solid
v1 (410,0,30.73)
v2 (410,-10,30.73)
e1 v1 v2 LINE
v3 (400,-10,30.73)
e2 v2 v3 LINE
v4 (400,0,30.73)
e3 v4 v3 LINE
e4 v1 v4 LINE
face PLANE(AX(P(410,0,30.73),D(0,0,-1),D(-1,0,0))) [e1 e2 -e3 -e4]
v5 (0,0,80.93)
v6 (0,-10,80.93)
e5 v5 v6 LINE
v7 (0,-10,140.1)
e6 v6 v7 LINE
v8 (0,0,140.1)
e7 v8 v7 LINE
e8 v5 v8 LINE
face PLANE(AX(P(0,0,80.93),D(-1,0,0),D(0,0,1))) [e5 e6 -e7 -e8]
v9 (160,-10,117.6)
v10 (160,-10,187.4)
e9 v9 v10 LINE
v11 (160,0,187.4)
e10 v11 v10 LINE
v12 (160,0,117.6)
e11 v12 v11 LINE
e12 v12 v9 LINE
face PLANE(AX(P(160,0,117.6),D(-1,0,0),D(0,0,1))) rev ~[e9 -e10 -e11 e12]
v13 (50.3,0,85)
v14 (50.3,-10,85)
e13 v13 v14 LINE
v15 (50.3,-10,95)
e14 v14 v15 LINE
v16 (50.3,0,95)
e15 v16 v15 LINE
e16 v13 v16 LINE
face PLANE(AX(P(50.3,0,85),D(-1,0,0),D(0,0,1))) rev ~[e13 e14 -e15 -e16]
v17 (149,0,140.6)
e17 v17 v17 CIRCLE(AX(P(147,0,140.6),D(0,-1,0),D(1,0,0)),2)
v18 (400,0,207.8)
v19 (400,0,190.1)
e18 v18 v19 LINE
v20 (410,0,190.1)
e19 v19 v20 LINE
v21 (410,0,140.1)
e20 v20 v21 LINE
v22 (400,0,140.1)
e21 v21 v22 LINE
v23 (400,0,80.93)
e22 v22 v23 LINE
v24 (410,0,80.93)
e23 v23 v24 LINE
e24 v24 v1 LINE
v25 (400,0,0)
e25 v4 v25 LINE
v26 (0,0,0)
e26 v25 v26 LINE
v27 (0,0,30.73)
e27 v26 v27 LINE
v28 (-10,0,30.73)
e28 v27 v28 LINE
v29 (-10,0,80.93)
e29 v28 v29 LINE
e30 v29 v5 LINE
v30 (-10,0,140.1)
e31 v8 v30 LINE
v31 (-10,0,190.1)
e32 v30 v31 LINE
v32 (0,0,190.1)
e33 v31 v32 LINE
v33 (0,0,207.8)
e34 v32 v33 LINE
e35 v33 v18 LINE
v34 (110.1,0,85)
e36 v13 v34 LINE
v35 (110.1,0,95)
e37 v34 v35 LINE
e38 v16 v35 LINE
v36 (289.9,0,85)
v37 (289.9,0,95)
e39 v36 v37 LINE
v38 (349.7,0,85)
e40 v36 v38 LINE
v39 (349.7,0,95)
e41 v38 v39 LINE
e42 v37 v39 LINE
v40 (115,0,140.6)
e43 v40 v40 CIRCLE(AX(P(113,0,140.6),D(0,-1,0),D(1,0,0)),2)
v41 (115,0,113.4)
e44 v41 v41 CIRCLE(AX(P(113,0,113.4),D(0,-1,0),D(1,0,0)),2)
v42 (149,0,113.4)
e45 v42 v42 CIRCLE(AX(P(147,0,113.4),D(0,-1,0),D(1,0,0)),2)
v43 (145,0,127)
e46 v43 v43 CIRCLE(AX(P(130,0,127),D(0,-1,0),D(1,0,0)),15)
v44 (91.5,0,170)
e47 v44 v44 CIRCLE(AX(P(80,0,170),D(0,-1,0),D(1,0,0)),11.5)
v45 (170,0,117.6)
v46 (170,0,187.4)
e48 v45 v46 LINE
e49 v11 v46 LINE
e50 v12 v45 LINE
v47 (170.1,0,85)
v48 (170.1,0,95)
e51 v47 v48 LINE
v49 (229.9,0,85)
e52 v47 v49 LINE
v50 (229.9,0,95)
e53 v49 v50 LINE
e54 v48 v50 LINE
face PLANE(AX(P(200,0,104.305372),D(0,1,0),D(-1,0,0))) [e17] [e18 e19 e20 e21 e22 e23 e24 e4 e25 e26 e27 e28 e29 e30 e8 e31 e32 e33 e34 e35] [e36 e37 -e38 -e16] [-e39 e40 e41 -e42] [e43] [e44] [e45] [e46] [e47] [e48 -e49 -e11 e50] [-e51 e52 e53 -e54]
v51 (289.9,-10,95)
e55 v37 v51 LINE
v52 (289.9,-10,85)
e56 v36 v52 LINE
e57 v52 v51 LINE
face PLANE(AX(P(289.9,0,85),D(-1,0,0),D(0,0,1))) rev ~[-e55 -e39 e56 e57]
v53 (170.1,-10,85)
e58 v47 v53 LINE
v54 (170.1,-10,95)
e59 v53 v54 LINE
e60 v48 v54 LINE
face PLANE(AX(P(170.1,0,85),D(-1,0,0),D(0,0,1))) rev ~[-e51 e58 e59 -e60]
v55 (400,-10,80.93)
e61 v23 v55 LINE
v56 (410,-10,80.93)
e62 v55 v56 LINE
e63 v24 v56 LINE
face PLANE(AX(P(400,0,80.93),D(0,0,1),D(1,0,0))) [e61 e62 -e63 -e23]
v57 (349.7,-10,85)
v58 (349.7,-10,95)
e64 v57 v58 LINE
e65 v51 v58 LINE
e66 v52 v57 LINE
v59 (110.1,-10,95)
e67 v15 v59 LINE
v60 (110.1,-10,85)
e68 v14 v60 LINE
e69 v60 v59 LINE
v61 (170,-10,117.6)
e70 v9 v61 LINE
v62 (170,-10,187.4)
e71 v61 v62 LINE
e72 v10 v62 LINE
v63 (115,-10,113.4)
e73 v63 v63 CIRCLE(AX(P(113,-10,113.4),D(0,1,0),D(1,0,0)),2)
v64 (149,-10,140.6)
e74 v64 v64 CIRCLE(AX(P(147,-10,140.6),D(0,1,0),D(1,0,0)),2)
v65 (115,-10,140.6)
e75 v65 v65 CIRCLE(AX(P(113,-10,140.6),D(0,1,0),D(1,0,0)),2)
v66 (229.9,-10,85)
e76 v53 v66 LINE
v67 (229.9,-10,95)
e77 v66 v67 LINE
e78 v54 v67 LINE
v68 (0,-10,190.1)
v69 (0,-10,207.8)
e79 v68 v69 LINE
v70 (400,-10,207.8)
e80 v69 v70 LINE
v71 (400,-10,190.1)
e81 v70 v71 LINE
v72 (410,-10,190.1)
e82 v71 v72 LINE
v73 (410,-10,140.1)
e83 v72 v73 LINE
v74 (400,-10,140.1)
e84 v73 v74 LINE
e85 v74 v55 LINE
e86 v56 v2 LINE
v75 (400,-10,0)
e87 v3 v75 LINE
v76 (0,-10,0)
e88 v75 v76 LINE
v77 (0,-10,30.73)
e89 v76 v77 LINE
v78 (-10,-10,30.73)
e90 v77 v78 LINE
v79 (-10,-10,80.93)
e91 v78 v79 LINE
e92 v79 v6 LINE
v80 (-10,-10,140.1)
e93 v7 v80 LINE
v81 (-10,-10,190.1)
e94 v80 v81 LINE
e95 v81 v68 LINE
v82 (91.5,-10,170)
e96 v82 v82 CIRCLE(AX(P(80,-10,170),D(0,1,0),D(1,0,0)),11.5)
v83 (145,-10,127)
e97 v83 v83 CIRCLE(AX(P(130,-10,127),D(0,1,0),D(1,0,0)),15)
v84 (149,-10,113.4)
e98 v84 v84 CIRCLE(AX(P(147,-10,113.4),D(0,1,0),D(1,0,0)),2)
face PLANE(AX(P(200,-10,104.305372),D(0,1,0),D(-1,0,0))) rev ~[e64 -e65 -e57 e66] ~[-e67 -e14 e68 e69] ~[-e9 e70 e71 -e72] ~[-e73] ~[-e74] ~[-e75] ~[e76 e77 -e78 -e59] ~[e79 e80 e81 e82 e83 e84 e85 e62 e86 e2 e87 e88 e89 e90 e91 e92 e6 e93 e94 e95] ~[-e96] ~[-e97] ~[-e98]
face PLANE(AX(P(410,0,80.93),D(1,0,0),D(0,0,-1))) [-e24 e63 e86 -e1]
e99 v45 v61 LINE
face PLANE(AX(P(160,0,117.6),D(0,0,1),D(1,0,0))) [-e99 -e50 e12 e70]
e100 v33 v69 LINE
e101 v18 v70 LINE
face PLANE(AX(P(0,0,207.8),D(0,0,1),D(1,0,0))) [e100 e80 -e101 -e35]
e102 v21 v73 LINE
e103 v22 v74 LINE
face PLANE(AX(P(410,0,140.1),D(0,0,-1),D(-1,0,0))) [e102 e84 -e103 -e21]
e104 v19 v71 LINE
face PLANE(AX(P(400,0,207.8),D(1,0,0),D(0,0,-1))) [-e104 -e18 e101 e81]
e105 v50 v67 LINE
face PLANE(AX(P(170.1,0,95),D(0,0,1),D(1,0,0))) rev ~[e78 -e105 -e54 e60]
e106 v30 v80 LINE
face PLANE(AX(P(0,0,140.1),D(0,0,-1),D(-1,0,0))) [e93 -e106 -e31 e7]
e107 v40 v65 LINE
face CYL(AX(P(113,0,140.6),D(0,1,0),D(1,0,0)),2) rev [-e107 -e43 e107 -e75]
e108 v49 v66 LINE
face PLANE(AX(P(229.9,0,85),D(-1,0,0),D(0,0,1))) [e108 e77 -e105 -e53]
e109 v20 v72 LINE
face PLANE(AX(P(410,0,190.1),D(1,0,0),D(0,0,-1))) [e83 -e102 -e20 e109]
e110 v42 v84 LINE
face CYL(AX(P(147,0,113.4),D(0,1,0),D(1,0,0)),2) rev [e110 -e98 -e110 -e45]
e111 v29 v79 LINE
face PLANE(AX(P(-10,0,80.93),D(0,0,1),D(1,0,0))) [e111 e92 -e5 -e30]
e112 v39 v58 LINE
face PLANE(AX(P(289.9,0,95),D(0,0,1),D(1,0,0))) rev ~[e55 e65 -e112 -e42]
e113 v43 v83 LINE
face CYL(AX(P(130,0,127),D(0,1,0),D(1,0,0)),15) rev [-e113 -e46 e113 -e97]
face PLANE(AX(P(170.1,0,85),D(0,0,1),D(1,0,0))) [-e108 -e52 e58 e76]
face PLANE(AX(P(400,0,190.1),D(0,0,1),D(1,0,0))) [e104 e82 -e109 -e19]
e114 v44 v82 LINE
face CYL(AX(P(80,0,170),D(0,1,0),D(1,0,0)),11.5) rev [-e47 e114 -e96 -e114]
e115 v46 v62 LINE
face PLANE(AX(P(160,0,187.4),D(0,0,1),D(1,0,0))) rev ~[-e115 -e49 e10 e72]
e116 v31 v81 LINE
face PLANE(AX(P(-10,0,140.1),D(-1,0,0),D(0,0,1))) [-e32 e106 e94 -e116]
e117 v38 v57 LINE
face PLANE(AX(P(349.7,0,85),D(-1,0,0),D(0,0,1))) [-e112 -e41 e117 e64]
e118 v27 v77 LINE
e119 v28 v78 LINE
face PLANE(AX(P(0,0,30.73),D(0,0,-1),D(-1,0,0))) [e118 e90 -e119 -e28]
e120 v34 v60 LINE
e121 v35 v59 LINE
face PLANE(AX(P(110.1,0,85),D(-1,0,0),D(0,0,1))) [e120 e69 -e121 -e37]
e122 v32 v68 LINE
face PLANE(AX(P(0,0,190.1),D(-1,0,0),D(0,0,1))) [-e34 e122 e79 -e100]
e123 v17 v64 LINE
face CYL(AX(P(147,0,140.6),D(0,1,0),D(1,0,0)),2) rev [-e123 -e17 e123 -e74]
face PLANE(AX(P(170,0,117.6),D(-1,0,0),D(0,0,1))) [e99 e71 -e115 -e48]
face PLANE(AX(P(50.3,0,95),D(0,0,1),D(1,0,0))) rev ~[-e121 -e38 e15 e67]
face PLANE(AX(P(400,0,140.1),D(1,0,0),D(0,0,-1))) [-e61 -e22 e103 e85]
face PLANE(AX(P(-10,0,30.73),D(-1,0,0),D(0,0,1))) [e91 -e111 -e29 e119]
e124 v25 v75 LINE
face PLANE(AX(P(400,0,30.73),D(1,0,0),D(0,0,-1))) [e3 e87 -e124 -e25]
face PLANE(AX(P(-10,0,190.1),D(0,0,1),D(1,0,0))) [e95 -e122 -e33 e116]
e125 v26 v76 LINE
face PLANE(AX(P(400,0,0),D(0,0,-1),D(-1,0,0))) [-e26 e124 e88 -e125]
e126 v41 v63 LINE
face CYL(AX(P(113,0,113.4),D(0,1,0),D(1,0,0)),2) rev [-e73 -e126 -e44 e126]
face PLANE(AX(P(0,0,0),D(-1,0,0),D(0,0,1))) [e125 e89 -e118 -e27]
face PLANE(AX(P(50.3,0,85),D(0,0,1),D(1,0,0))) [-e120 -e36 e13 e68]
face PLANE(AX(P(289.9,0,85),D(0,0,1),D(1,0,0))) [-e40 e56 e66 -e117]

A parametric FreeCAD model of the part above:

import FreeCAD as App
import Part
import Sketcher
from FreeCAD import Vector

doc = App.newDocument("Part")
params = doc.addObject("Spreadsheet::Sheet", "Params")
for row, (alias, value) in enumerate([
    ("sketch1_width", "400 mm"),
    ("sketch1_width2", "10 mm"),
    ("sketch1_height", "50 mm"),
    ("sketch1_width3", "59.8 mm"),
    ("sketch1_height2", "50.2 mm"),
    ("pad1_length", "10 mm"),
    ("sketch2_diameter", "4 mm"),
    ("sketch2_diameter2", "30 mm"),
    ("sketch3_diameter", "23 mm"),
], start=1):
    params.set(f"A{row}", alias)
    params.set(f"B{row}", "=" + value)
    params.setAlias(f"B{row}", alias)

body = doc.addObject("PartDesign::Body", "Body")

# Sketch on XZ plane
sketch1 = body.newObject("Sketcher::SketchObject", "Sketch")
sketch1.AttachmentSupport = (doc.getObject("XZ_Plane"), [""])
sketch1.MapMode = "FlatFace"
sketch1.addGeometry([
    Part.LineSegment(Vector(0, 31, 0), Vector(0, 0, 0)),  # 0
    Part.LineSegment(Vector(0, 0, 0), Vector(400, 0, 0)),  # 1
    Part.LineSegment(Vector(400, 0, 0), Vector(400, 31, 0)),  # 2
    Part.LineSegment(Vector(400, 31, 0), Vector(410, 31, 0)),  # 3
    Part.LineSegment(Vector(410, 31, 0), Vector(410, 81, 0)),  # 4
    Part.LineSegment(Vector(410, 81, 0), Vector(400, 81, 0)),  # 5
    Part.LineSegment(Vector(400, 81, 0), Vector(400, 140, 0)),  # 6
    Part.LineSegment(Vector(400, 140, 0), Vector(410, 140, 0)),  # 7
    Part.LineSegment(Vector(410, 140, 0), Vector(410, 190, 0)),  # 8
    Part.LineSegment(Vector(410, 190, 0), Vector(400, 190, 0)),  # 9
    Part.LineSegment(Vector(400, 190, 0), Vector(400, 208, 0)),  # 10
    Part.LineSegment(Vector(400, 208, 0), Vector(0, 208, 0)),  # 11
    Part.LineSegment(Vector(0, 208, 0), Vector(0, 190, 0)),  # 12
    Part.LineSegment(Vector(0, 190, 0), Vector(-10, 190, 0)),  # 13
    Part.LineSegment(Vector(-10, 190, 0), Vector(-10, 140, 0)),  # 14
    Part.LineSegment(Vector(-10, 140, 0), Vector(0, 140, 0)),  # 15
    Part.LineSegment(Vector(0, 140, 0), Vector(0, 81, 0)),  # 16
    Part.LineSegment(Vector(0, 81, 0), Vector(-10, 81, 0)),  # 17
    Part.LineSegment(Vector(-10, 81, 0), Vector(-10, 31, 0)),  # 18
    Part.LineSegment(Vector(-10, 31, 0), Vector(0, 31, 0)),  # 19
    Part.LineSegment(Vector(290, 85, 0), Vector(290, 95, 0)),  # 20
    Part.LineSegment(Vector(290, 95, 0), Vector(350, 95, 0)),  # 21
    Part.LineSegment(Vector(350, 95, 0), Vector(350, 85, 0)),  # 22
    Part.LineSegment(Vector(350, 85, 0), Vector(290, 85, 0)),  # 23
    Part.LineSegment(Vector(170, 85, 0), Vector(170, 95, 0)),  # 24
    Part.LineSegment(Vector(170, 95, 0), Vector(230, 95, 0)),  # 25
    Part.LineSegment(Vector(230, 95, 0), Vector(230, 85, 0)),  # 26
    Part.LineSegment(Vector(230, 85, 0), Vector(170, 85, 0)),  # 27
    Part.LineSegment(Vector(50, 85, 0), Vector(50, 95, 0)),  # 28
    Part.LineSegment(Vector(50, 95, 0), Vector(110, 95, 0)),  # 29
    Part.LineSegment(Vector(110, 95, 0), Vector(110, 85, 0)),  # 30
    Part.LineSegment(Vector(110, 85, 0), Vector(50, 85, 0)),  # 31
    Part.LineSegment(Vector(160, 118, 0), Vector(160, 187, 0)),  # 32
    Part.LineSegment(Vector(160, 187, 0), Vector(170, 187, 0)),  # 33
    Part.LineSegment(Vector(170, 187, 0), Vector(170, 118, 0)),  # 34
    Part.LineSegment(Vector(170, 118, 0), Vector(160, 118, 0)),  # 35
], False)
sketch1.addConstraint([
    Sketcher.Constraint("Coincident", 0, 2, 1, 1),
    Sketcher.Constraint("Coincident", 1, 2, 2, 1),
    Sketcher.Constraint("Coincident", 2, 2, 3, 1),
    Sketcher.Constraint("Coincident", 3, 2, 4, 1),
    Sketcher.Constraint("Coincident", 4, 2, 5, 1),
    Sketcher.Constraint("Coincident", 5, 2, 6, 1),
    Sketcher.Constraint("Coincident", 6, 2, 7, 1),
    Sketcher.Constraint("Coincident", 7, 2, 8, 1),
    Sketcher.Constraint("Coincident", 8, 2, 9, 1),
    Sketcher.Constraint("Coincident", 9, 2, 10, 1),
    Sketcher.Constraint("Coincident", 10, 2, 11, 1),
    Sketcher.Constraint("Coincident", 11, 2, 12, 1),
    Sketcher.Constraint("Coincident", 12, 2, 13, 1),
    Sketcher.Constraint("Coincident", 13, 2, 14, 1),
    Sketcher.Constraint("Coincident", 14, 2, 15, 1),
    Sketcher.Constraint("Coincident", 15, 2, 16, 1),
    Sketcher.Constraint("Coincident", 16, 2, 17, 1),
    Sketcher.Constraint("Coincident", 17, 2, 18, 1),
    Sketcher.Constraint("Coincident", 18, 2, 19, 1),
    Sketcher.Constraint("Coincident", 19, 2, 0, 1),
    Sketcher.Constraint("Coincident", 20, 2, 21, 1),
    Sketcher.Constraint("Coincident", 21, 2, 22, 1),
    Sketcher.Constraint("Coincident", 22, 2, 23, 1),
    Sketcher.Constraint("Coincident", 23, 2, 20, 1),
    Sketcher.Constraint("Coincident", 24, 2, 25, 1),
    Sketcher.Constraint("Coincident", 25, 2, 26, 1),
    Sketcher.Constraint("Coincident", 26, 2, 27, 1),
    Sketcher.Constraint("Coincident", 27, 2, 24, 1),
    Sketcher.Constraint("Coincident", 28, 2, 29, 1),
    Sketcher.Constraint("Coincident", 29, 2, 30, 1),
    Sketcher.Constraint("Coincident", 30, 2, 31, 1),
    Sketcher.Constraint("Coincident", 31, 2, 28, 1),
    Sketcher.Constraint("Coincident", 32, 2, 33, 1),
    Sketcher.Constraint("Coincident", 33, 2, 34, 1),
    Sketcher.Constraint("Coincident", 34, 2, 35, 1),
    Sketcher.Constraint("Coincident", 35, 2, 32, 1),
    Sketcher.Constraint("Vertical", 0),
    Sketcher.Constraint("Horizontal", 1),
    Sketcher.Constraint("Vertical", 2),
    Sketcher.Constraint("Horizontal", 3),
    Sketcher.Constraint("Vertical", 4),
    Sketcher.Constraint("Horizontal", 5),
    Sketcher.Constraint("Vertical", 6),
    Sketcher.Constraint("Horizontal", 7),
    Sketcher.Constraint("Vertical", 8),
    Sketcher.Constraint("Horizontal", 9),
    Sketcher.Constraint("Vertical", 10),
    Sketcher.Constraint("Horizontal", 11),
    Sketcher.Constraint("Vertical", 12),
    Sketcher.Constraint("Horizontal", 13),
    Sketcher.Constraint("Vertical", 14),
    Sketcher.Constraint("Horizontal", 15),
    Sketcher.Constraint("Vertical", 16),
    Sketcher.Constraint("Horizontal", 17),
    Sketcher.Constraint("Vertical", 18),
    Sketcher.Constraint("Horizontal", 19),
    Sketcher.Constraint("Vertical", 20),
    Sketcher.Constraint("Horizontal", 21),
    Sketcher.Constraint("Vertical", 22),
    Sketcher.Constraint("Horizontal", 23),
    Sketcher.Constraint("Vertical", 24),
    Sketcher.Constraint("Horizontal", 25),
    Sketcher.Constraint("Vertical", 26),
    Sketcher.Constraint("Horizontal", 27),
    Sketcher.Constraint("Vertical", 28),
    Sketcher.Constraint("Horizontal", 29),
    Sketcher.Constraint("Vertical", 30),
    Sketcher.Constraint("Horizontal", 31),
    Sketcher.Constraint("Vertical", 32),
    Sketcher.Constraint("Horizontal", 33),
    Sketcher.Constraint("Vertical", 34),
    Sketcher.Constraint("Horizontal", 35),
    Sketcher.Constraint("Coincident", 0, 2, -1, 1),
    Sketcher.Constraint("PointOnObject", 11, 2, -2),
    Sketcher.Constraint("PointOnObject", 15, 2, -2),
    Sketcher.Constraint("Horizontal", 9, 2, 12, 2),
    Sketcher.Constraint("Horizontal", 7, 2, 14, 2),
    Sketcher.Constraint("Horizontal", 5, 2, 16, 2),
    Sketcher.Constraint("Horizontal", 3, 2, 18, 2),
    Sketcher.Constraint("Horizontal", 21, 2, 24, 2),
    Sketcher.Constraint("Horizontal", 23, 2, 26, 2),
    Sketcher.Constraint("Horizontal", 25, 2, 28, 2),
    Sketcher.Constraint("Horizontal", 27, 2, 30, 2),
    Sketcher.Constraint("Vertical", 2, 2, 5, 2),
    Sketcher.Constraint("Vertical", 4, 2, 7, 2),
    Sketcher.Constraint("Vertical", 6, 2, 9, 2),
    Sketcher.Constraint("Vertical", 14, 2, 17, 2),
    Sketcher.Constraint("Equal", 9, 13),
    Sketcher.Constraint("Equal", 23, 25),
    Sketcher.Constraint("Equal", 27, 29),
    Sketcher.Constraint("Equal", 19, 33),
    Sketcher.Constraint("Equal", 35, 20),
    Sketcher.Constraint("DistanceX", 1, 1, 1, 2, 400.0),
    Sketcher.Constraint("DistanceX", 3, 1, 3, 2, 10.0),
    Sketcher.Constraint("DistanceY", 8, 1, 8, 2, 50.0),
    Sketcher.Constraint("DistanceX", 21, 1, 21, 2, 59.8),
    Sketcher.Constraint("DistanceY", 4, 1, 4, 2, 50.2),
    Sketcher.Constraint("DistanceY", 10, 1, 10, 2, 17.7),
    Sketcher.Constraint("DistanceY", 32, 1, 32, 2, 69.8),
    Sketcher.Constraint("DistanceY", -1, 1, 20, 2, 95.0),
    Sketcher.Constraint("DistanceX", -1, 1, 32, 2, 160.0),
    Sketcher.Constraint("DistanceX", 25, 2, 20, 2, 60.0),
    Sketcher.Constraint("DistanceX", 29, 2, 24, 2, 60.0),
    Sketcher.Constraint("DistanceY", 0, 2, 0, 1, 30.73),
    Sketcher.Constraint("DistanceY", 6, 1, 6, 2, 59.17),
    Sketcher.Constraint("DistanceX", -1, 1, 20, 2, 289.9),
    Sketcher.Constraint("DistanceY", -1, 1, 32, 2, 187.4),
])
sketch1.setExpression("Constraints[92]", "Params.sketch1_width")
sketch1.setExpression("Constraints[93]", "Params.sketch1_width2")
sketch1.setExpression("Constraints[94]", "Params.sketch1_height")
sketch1.setExpression("Constraints[95]", "Params.sketch1_width3")
sketch1.setExpression("Constraints[96]", "Params.sketch1_height2")
pad1 = body.newObject("PartDesign::Pad", "Pad")
pad1.Profile = sketch1
pad1.setExpression("Length", "Params.pad1_length")

# Sketch on XZ plane
sketch2 = body.newObject("Sketcher::SketchObject", "Sketch001")
sketch2.AttachmentSupport = (doc.getObject("XZ_Plane"), [""])
sketch2.MapMode = "FlatFace"
sketch2.addGeometry([
    Part.Circle(Vector(113, 140.6, 0), Vector(0, 0, 1), 2),  # 0
    Part.Circle(Vector(147, 140.6, 0), Vector(0, 0, 1), 2),  # 1
    Part.Circle(Vector(147, 113.4, 0), Vector(0, 0, 1), 2),  # 2
    Part.Circle(Vector(113, 113.4, 0), Vector(0, 0, 1), 2),  # 3
    Part.Circle(Vector(130, 127, 0), Vector(0, 0, 1), 15),  # 4
], False)
sketch2.addConstraint([
    Sketcher.Constraint("Equal", 0, 1),
    Sketcher.Constraint("Equal", 1, 2),
    Sketcher.Constraint("Equal", 2, 3),
    Sketcher.Constraint("Horizontal", 0, 3, 1, 3),
    Sketcher.Constraint("Horizontal", 2, 3, 3, 3),
    Sketcher.Constraint("Vertical", 1, 3, 2, 3),
    Sketcher.Constraint("Vertical", 0, 3, 3, 3),
    Sketcher.Constraint("Diameter", 0, 4.0),
    Sketcher.Constraint("Diameter", 4, 30.0),
    Sketcher.Constraint("DistanceX", -1, 1, 0, 3, 113.0),
    Sketcher.Constraint("DistanceX", -1, 1, 1, 3, 147.0),
    Sketcher.Constraint("DistanceX", -1, 1, 4, 3, 130.0),
    Sketcher.Constraint("DistanceY", -1, 1, 4, 3, 127.0),
    Sketcher.Constraint("DistanceY", -1, 1, 0, 3, 140.6),
    Sketcher.Constraint("DistanceY", -1, 1, 2, 3, 113.4),
])
sketch2.setExpression("Constraints[7]", "Params.sketch2_diameter")
sketch2.setExpression("Constraints[8]", "Params.sketch2_diameter2")
pocket1 = body.newObject("PartDesign::Pocket", "Pocket")
pocket1.Profile = sketch2
pocket1.Type = "ThroughAll"
pocket1.Reversed = True

# Sketch on XZ plane
sketch3 = body.newObject("Sketcher::SketchObject", "Sketch002")
sketch3.AttachmentSupport = (doc.getObject("XZ_Plane"), [""])
sketch3.MapMode = "FlatFace"
sketch3.addGeometry(Part.Circle(Vector(80, 170, 0), Vector(0, 0, 1), 12), False)
sketch3.addConstraint([
    Sketcher.Constraint("Diameter", 0, 23.0),
    Sketcher.Constraint("DistanceX", -1, 1, 0, 3, 80.0),
    Sketcher.Constraint("DistanceY", -1, 1, 0, 3, 170.0),
])
sketch3.setExpression("Constraints[0]", "Params.sketch3_diameter")
pocket2 = body.newObject("PartDesign::Pocket", "Pocket001")
pocket2.Profile = sketch3
pocket2.Type = "ThroughAll"
pocket2.Reversed = True

doc.recompute()
